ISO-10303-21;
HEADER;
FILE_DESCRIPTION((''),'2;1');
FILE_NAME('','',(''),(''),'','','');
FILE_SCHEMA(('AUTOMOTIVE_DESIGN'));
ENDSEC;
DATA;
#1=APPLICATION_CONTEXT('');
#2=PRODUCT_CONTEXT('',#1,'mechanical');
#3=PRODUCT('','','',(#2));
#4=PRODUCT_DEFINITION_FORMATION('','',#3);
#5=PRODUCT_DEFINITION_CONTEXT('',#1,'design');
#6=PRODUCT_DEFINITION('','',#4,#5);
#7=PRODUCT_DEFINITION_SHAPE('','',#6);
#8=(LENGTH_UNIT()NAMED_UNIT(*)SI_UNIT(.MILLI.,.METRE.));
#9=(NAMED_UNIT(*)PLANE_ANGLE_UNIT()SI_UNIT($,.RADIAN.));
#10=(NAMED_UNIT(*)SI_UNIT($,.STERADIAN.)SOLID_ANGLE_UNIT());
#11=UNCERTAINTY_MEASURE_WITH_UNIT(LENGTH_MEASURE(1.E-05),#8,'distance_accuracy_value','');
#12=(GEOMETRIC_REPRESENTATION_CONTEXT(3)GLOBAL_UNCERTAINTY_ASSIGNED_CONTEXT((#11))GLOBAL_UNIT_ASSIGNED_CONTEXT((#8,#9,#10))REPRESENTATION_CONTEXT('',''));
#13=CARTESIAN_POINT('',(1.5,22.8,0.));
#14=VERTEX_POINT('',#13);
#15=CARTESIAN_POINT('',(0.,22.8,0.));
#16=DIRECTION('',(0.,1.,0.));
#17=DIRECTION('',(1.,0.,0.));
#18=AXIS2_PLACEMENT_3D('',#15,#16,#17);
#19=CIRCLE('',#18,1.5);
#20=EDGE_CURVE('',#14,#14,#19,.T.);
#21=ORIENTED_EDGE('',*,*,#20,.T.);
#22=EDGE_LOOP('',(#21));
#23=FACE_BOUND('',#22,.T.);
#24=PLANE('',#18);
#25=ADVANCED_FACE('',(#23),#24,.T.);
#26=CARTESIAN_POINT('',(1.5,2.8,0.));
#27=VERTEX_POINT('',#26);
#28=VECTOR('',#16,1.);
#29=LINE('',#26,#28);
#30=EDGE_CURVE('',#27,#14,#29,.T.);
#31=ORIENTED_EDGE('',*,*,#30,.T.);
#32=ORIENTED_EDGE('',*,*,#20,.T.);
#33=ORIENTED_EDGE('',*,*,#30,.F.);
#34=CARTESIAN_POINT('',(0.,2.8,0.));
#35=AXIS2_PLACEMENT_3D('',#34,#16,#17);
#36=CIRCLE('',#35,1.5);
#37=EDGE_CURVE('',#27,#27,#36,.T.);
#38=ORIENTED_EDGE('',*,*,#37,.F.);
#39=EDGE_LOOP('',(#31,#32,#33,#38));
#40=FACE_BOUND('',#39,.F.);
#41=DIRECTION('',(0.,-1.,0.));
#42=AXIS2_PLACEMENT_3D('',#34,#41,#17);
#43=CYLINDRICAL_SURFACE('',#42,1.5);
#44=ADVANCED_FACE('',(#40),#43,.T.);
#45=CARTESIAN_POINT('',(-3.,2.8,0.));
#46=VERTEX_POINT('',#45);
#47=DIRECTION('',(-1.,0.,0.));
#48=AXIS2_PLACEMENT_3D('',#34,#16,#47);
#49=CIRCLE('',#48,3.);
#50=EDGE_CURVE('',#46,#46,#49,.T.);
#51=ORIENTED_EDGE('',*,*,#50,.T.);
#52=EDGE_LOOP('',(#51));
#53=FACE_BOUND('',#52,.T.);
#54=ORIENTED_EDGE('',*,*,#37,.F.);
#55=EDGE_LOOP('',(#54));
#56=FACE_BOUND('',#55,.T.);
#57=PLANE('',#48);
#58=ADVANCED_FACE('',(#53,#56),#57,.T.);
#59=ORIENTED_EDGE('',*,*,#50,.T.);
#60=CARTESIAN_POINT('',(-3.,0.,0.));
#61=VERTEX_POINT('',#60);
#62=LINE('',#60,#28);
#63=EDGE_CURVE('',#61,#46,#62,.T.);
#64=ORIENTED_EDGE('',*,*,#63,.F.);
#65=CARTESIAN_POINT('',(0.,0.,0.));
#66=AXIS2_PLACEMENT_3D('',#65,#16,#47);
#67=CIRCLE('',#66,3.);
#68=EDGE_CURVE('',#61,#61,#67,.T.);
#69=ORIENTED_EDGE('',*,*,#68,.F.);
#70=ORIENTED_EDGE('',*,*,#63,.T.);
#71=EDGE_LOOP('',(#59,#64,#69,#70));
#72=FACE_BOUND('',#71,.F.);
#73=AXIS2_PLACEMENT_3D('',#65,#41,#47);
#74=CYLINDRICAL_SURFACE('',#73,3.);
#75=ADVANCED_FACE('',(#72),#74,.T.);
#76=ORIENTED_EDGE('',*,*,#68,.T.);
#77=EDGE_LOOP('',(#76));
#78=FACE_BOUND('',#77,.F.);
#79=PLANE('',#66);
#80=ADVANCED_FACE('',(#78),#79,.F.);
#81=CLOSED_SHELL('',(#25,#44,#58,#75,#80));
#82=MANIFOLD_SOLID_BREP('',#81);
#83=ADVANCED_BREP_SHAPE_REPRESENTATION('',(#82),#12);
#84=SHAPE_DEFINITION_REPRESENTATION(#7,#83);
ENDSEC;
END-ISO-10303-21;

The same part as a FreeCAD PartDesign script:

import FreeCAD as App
import Part
import Sketcher
from FreeCAD import Vector

doc = App.newDocument("Part")
body = doc.addObject("PartDesign::Body", "Body")

# Sketch on XZ plane
sketch1 = body.newObject("Sketcher::SketchObject", "Sketch")
sketch1.AttachmentSupport = (doc.getObject("XZ_Plane"), [""])
sketch1.MapMode = "FlatFace"
sketch1.addGeometry(Part.Circle(Vector(0, 0, 0), Vector(0, 0, 1), 3), False)
sketch1.addConstraint(Sketcher.Constraint("Coincident", 0, 3, -1, 1))
sketch1.addConstraint(Sketcher.Constraint("Diameter", 0, 6.0))
pad1 = body.newObject("PartDesign::Pad", "Pad")
pad1.Profile = sketch1
pad1.Length = 2.8
pad1.Reversed = True

# Sketch on XZ plane
sketch2 = body.newObject("Sketcher::SketchObject", "Sketch001")
sketch2.AttachmentSupport = (doc.getObject("XZ_Plane"), [""])
sketch2.MapMode = "FlatFace"
sketch2.AttachmentOffset = App.Placement(Vector(0, 0, -2.8), App.Rotation())
sketch2.addGeometry(Part.Circle(Vector(0, 0, 0), Vector(0, 0, 1), 1.5), False)
sketch2.addConstraint(Sketcher.Constraint("Coincident", 0, 3, -1, 1))
sketch2.addConstraint(Sketcher.Constraint("Diameter", 0, 3.0))
pad2 = body.newObject("PartDesign::Pad", "Pad001")
pad2.Profile = sketch2
pad2.Length = 20
pad2.Reversed = True

doc.recompute()
